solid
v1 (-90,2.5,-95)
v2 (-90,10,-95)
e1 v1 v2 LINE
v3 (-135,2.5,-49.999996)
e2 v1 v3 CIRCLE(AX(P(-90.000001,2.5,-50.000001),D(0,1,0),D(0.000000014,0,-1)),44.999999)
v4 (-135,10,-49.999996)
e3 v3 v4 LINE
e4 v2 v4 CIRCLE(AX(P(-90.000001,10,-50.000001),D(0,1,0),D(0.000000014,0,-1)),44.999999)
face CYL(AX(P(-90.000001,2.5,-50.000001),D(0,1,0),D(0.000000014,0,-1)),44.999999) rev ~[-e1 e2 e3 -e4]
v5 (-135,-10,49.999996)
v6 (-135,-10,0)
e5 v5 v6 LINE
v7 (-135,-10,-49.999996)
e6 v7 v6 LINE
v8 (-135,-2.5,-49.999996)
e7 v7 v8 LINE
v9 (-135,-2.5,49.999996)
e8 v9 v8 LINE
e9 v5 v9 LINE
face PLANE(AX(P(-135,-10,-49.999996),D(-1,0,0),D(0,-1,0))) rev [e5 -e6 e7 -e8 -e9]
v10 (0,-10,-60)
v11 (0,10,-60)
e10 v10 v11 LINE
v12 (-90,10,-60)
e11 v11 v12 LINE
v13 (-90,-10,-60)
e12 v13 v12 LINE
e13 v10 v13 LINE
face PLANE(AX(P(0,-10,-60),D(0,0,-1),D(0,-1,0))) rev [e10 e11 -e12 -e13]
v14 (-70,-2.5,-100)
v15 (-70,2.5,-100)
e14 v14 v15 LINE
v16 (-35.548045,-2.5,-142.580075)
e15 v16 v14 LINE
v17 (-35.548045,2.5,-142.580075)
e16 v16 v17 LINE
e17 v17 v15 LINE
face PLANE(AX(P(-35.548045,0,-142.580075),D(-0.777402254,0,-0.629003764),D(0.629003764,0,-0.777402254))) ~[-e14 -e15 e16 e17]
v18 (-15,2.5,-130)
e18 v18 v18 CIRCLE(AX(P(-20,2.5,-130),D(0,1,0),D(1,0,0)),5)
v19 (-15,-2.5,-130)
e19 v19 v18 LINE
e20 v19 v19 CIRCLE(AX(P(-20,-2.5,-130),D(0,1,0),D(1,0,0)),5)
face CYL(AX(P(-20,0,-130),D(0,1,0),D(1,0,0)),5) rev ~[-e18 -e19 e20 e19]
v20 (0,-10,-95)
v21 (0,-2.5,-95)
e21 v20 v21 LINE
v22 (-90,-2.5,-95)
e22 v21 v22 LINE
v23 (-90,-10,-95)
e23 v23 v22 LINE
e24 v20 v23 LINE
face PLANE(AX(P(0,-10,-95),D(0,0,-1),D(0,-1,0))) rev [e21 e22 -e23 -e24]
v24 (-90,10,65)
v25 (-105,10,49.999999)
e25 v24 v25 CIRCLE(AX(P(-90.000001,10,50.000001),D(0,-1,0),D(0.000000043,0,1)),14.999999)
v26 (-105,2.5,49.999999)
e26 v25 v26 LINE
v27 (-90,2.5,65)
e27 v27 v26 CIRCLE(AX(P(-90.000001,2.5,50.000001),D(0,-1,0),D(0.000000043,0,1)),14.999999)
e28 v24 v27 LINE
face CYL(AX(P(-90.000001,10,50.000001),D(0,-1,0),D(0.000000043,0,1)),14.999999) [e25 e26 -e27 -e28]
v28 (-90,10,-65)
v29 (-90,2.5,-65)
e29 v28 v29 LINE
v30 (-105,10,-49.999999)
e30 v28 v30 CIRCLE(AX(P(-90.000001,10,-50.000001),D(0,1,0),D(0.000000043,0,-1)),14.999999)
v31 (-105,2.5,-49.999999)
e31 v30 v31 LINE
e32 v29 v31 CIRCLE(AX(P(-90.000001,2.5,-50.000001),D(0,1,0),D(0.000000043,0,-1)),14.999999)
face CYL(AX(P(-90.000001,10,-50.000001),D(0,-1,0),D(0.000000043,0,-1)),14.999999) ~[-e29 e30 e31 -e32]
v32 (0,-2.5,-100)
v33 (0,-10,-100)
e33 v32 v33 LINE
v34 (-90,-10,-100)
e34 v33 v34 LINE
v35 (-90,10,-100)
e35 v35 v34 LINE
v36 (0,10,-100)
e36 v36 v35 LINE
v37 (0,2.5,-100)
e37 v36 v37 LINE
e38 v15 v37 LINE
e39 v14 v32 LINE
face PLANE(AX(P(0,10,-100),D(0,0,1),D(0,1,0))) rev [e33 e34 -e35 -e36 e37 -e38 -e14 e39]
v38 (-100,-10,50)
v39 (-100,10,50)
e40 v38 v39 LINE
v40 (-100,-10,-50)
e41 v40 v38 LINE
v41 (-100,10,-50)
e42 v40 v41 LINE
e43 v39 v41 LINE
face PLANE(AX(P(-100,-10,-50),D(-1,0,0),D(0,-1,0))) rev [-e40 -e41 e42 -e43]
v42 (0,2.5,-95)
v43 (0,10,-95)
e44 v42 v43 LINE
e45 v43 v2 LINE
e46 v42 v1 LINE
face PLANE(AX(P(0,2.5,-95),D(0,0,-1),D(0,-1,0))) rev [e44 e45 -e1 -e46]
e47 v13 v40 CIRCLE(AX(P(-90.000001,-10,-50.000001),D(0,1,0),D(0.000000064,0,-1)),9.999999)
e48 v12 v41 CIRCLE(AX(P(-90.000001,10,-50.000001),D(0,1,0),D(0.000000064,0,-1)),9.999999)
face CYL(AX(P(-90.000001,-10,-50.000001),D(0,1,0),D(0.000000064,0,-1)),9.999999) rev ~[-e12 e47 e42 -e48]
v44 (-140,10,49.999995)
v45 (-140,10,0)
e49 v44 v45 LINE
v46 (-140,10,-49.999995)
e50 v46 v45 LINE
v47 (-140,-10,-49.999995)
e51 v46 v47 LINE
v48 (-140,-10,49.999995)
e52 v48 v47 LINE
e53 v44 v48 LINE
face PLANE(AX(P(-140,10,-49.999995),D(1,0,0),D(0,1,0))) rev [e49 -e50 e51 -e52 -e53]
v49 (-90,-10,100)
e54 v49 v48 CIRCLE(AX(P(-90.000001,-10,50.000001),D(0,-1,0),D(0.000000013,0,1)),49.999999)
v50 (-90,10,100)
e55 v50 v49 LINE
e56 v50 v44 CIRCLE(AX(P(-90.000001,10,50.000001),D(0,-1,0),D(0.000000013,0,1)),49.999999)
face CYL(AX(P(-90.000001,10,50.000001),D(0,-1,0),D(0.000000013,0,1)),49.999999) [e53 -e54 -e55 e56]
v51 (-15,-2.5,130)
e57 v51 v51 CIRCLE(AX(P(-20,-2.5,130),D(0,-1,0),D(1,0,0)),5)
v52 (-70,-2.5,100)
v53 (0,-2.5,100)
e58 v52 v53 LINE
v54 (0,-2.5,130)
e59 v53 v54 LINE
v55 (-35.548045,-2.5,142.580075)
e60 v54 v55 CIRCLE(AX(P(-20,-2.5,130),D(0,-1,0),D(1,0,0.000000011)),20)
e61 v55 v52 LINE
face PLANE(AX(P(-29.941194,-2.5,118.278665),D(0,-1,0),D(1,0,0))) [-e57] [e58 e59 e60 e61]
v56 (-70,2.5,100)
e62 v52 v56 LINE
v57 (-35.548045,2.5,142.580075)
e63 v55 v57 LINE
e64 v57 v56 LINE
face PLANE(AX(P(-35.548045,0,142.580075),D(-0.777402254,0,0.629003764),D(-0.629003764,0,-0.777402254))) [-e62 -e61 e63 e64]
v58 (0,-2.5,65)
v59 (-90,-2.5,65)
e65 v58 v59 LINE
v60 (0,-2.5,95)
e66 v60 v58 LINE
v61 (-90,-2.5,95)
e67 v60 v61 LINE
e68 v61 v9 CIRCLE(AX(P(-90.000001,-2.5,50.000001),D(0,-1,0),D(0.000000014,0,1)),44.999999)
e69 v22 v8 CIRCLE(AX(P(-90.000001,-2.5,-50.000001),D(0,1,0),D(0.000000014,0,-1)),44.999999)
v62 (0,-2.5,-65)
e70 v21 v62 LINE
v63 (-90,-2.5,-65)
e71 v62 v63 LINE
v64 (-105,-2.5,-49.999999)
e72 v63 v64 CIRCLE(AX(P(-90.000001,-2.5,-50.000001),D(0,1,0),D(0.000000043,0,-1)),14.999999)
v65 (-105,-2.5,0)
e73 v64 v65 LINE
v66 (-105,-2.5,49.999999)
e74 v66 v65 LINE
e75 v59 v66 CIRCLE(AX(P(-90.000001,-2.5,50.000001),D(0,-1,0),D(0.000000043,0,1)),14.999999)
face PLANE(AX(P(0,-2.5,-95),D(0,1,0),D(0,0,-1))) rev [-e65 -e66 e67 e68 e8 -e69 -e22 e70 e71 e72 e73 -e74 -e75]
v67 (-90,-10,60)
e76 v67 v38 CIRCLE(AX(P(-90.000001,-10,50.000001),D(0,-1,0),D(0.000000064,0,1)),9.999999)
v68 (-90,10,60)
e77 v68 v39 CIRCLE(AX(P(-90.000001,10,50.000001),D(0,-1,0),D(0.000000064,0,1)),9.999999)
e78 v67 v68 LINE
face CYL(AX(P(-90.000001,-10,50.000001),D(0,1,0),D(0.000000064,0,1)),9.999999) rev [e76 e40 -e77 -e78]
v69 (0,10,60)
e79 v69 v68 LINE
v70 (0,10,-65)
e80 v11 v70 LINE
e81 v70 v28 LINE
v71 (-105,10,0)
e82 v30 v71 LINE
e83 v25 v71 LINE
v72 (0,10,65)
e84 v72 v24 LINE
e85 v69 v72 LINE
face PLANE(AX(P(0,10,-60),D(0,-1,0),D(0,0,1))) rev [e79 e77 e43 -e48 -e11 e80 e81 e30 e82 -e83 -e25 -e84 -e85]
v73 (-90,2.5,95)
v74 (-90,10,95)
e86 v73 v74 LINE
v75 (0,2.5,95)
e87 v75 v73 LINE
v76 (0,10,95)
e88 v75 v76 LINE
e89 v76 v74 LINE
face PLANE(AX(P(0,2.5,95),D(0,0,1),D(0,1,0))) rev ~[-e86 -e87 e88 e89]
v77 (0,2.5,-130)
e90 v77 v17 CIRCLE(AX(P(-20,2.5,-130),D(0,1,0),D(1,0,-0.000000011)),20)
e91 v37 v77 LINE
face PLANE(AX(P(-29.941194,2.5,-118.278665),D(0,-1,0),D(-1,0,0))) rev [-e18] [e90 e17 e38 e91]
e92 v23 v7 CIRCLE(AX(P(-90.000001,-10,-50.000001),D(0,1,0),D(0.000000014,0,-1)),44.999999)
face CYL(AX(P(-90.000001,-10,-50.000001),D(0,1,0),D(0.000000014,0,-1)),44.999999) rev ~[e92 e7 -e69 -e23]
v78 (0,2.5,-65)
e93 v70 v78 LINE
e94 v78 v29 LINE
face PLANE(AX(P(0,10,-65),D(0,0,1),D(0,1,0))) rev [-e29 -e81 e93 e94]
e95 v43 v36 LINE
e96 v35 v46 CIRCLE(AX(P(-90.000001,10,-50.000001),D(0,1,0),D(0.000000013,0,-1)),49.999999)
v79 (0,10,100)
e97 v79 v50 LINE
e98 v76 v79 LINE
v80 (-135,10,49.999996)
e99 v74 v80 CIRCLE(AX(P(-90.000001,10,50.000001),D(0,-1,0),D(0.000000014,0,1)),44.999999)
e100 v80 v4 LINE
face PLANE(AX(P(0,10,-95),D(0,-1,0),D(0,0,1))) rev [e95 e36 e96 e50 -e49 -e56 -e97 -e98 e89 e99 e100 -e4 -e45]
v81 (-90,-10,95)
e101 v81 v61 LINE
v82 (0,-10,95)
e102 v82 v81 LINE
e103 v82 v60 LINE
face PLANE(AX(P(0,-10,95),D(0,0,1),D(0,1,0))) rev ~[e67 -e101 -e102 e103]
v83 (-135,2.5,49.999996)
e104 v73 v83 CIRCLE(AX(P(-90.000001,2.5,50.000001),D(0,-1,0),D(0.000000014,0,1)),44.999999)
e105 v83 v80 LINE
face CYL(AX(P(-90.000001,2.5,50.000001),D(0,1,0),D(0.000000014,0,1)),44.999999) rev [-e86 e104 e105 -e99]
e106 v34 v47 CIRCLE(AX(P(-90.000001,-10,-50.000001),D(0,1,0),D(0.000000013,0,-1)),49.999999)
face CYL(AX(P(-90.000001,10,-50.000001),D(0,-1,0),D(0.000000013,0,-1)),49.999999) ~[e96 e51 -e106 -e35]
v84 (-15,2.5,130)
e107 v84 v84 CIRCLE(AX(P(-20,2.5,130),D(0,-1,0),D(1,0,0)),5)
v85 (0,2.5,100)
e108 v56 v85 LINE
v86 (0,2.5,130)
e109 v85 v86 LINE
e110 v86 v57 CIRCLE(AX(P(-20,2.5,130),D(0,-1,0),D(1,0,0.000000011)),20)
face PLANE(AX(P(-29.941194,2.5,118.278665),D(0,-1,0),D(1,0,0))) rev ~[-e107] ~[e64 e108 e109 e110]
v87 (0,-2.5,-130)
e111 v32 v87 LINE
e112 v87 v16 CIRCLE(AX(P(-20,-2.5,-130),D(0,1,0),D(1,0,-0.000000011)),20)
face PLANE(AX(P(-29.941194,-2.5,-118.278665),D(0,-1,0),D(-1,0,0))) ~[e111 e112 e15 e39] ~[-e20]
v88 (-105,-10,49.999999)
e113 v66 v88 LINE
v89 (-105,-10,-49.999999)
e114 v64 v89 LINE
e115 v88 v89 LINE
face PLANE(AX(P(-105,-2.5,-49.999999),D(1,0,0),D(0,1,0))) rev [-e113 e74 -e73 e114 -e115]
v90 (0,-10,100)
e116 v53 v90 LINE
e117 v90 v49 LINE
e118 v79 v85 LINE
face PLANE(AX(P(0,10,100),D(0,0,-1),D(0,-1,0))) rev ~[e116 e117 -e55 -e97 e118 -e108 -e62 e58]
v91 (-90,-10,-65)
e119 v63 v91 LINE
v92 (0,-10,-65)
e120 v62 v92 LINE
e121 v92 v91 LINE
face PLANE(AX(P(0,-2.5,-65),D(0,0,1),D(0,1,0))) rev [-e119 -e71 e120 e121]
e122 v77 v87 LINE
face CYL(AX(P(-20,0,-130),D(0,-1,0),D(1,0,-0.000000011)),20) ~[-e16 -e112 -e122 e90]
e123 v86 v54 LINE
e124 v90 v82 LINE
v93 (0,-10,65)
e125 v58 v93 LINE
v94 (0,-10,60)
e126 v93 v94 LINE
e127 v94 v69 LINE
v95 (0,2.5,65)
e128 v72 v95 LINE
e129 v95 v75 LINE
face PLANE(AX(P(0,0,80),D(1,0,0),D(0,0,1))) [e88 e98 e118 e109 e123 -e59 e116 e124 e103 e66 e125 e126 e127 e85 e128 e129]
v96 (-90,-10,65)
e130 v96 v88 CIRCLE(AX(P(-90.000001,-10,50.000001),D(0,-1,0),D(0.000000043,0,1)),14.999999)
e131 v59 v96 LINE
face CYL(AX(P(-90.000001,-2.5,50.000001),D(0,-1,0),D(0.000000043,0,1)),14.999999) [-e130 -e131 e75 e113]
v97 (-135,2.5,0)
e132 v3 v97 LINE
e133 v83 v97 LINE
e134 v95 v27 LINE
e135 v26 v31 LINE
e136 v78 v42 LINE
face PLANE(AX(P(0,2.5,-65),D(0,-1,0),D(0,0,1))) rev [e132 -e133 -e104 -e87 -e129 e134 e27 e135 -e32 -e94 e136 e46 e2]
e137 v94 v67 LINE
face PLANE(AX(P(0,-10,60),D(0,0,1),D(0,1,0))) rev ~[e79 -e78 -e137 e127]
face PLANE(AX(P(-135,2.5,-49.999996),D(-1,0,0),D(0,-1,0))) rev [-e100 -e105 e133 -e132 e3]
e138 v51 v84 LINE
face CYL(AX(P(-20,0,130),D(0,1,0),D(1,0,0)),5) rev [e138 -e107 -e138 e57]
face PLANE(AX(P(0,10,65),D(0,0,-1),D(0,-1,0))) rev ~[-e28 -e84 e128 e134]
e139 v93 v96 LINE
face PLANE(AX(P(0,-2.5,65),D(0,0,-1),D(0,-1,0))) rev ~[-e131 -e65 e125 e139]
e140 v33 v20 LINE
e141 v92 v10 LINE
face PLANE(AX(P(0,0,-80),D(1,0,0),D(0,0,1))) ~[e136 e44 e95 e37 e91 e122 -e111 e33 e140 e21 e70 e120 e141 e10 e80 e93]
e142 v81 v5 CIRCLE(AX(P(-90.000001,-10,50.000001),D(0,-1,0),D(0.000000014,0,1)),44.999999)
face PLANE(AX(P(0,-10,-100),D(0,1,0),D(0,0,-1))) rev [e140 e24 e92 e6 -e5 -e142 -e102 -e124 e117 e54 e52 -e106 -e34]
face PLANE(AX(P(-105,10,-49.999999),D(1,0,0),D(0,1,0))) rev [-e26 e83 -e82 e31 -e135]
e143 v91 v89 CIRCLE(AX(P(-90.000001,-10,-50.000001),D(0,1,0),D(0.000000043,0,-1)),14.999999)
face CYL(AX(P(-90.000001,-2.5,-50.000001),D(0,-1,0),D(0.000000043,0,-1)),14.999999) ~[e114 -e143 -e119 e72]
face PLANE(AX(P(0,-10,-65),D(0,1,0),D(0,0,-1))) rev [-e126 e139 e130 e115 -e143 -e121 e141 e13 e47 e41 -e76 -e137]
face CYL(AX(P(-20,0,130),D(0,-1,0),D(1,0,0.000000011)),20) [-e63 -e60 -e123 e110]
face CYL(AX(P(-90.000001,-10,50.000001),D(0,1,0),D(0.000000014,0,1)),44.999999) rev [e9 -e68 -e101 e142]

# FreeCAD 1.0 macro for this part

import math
import FreeCAD as App
import Part
import Sketcher
Q = App.Units.Quantity


def add_polygon(sketch, points):
    """Adds a closed chain of lines whose ends are joined by coincident constraints."""
    first, n = sketch.GeometryCount, len(points)
    for a, b in zip(points, points[1:] + points[:1]):
        sketch.addGeometry(Part.LineSegment(App.Vector(*a, 0), App.Vector(*b, 0)), False)
    for i in range(n):
        sketch.addConstraint(Sketcher.Constraint("Coincident", first + i, 2, first + (i + 1) % n, 1))

doc = App.newDocument("Part")
body = doc.addObject("PartDesign::Body", "Body")

# Sketch on YZ plane
sketch1 = body.newObject("Sketcher::SketchObject", "Sketch")
sketch1.AttachmentSupport = (doc.getObject("YZ_Plane"), [""])
sketch1.MapMode = "FlatFace"
add_polygon(sketch1, [(-10, 60), (10, 60), (10, 65), (2, 65), (2, 95), (10, 95), (10, 100), (-10, 100), (-10, 95), (-2, 95), (-2, 65), (-10, 65)])  # lines 0-11
sketch1.addConstraint([
    Sketcher.Constraint("Horizontal", 0),
    Sketcher.Constraint("Vertical", 1),
    Sketcher.Constraint("Horizontal", 2),
    Sketcher.Constraint("Vertical", 3),
    Sketcher.Constraint("Horizontal", 4),
    Sketcher.Constraint("Vertical", 5),
    Sketcher.Constraint("Horizontal", 6),
    Sketcher.Constraint("Vertical", 7),
    Sketcher.Constraint("Horizontal", 8),
    Sketcher.Constraint("Vertical", 9),
    Sketcher.Constraint("Horizontal", 10),
    Sketcher.Constraint("Vertical", 11),
    Sketcher.Constraint("Symmetric", 4, 2, 7, 2, -2),
    Sketcher.Constraint("Symmetric", 2, 2, 9, 2, -2),
    Sketcher.Constraint("Vertical", 1, 2, 4, 2),
    Sketcher.Constraint("Vertical", 7, 2, 10, 2),
    Sketcher.Constraint("Equal", 1, 5),
    Sketcher.Constraint("DistanceX", 0, 1, 0, 2, Q("20 mm")),
    Sketcher.Constraint("DistanceY", 1, 1, 1, 2, Q("5 mm")),
    Sketcher.Constraint("DistanceY", 3, 1, 3, 2, Q("30 mm")),
    Sketcher.Constraint("DistanceX", 2, 2, 2, 1, Q("7.5 mm")),
    Sketcher.Constraint("DistanceY", -1, 1, 0, 2, Q("60 mm")),
])

# Sketch on XZ plane
sketch2 = body.newObject("Sketcher::SketchObject", "Sketch001")
sketch2.AttachmentSupport = (doc.getObject("XZ_Plane"), [""])
sketch2.MapMode = "FlatFace"
sketch2.addGeometry([
    Part.LineSegment(App.Vector(0, 60, 0), App.Vector(-90, 60, 0)),
    Part.ArcOfCircle(Part.Circle(App.Vector(-90, 50, 0), App.Vector(0, 0, 1), 10), math.radians(90), math.radians(180)),
    Part.LineSegment(App.Vector(-100, 50, 0), App.Vector(-100, 0, 0)),
], False)
sketch2.addConstraint([
    Sketcher.Constraint("Tangent", 0, 2, 1, 1),
    Sketcher.Constraint("Tangent", 1, 2, 2, 1),
    Sketcher.Constraint("Horizontal", 0),
    Sketcher.Constraint("Vertical", 2),
    Sketcher.Constraint("PointOnObject", 0, 1, -2),
    Sketcher.Constraint("PointOnObject", 2, 2, -1),
    Sketcher.Constraint("Radius", 1, Q("9.999999 mm")),
    Sketcher.Constraint("DistanceX", 0, 2, 0, 1, Q("90 mm")),
    Sketcher.Constraint("DistanceY", 2, 2, 2, 1, Q("50 mm")),
])
doc.recompute()

additivepipe = body.newObject("PartDesign::AdditivePipe", "AdditivePipe")
additivepipe.Profile = sketch1
additivepipe.Spine = (sketch2, ["Edge1", "Edge2", "Edge3"])

# Sketch on XZ plane
sketch3 = body.newObject("Sketcher::SketchObject", "Sketch002")
sketch3.AttachmentSupport = (doc.getObject("XZ_Plane"), [""])
sketch3.MapMode = "FlatFace"
sketch3.addGeometry([
    Part.LineSegment(App.Vector(-70, 100, 0), App.Vector(0, 100, 0)),  # 0
    Part.LineSegment(App.Vector(0, 100, 0), App.Vector(0, 130, 0)),  # 1
    Part.ArcOfCircle(Part.Circle(App.Vector(-20, 130, 0), App.Vector(0, 0, 1), 20), math.radians(0), math.radians(141)),  # 2
    Part.LineSegment(App.Vector(-36, 143, 0), App.Vector(-70, 100, 0)),  # 3
    Part.Circle(App.Vector(-20, 130, 0), App.Vector(0, 0, 1), 5),  # 4
], False)
sketch3.addConstraint([
    Sketcher.Constraint("Coincident", 0, 2, 1, 1),
    Sketcher.Constraint("Tangent", 1, 2, 2, 1),
    Sketcher.Constraint("Tangent", 2, 2, 3, 1),
    Sketcher.Constraint("Coincident", 3, 2, 0, 1),
    Sketcher.Constraint("Horizontal", 0),
    Sketcher.Constraint("Vertical", 1),
    Sketcher.Constraint("Coincident", 4, 3, 2, 3),
    Sketcher.Constraint("PointOnObject", 0, 2, -2),
    Sketcher.Constraint("Diameter", 4, Q("10 mm")),
    Sketcher.Constraint("Radius", 2, Q("20 mm")),
    Sketcher.Constraint("DistanceX", 0, 1, 0, 2, Q("70 mm")),
    Sketcher.Constraint("DistanceY", 1, 1, 1, 2, Q("30 mm")),
    Sketcher.Constraint("DistanceY", -1, 1, 2, 3, Q("130 mm")),
])
pad1 = body.newObject("PartDesign::Pad", "Pad")
pad1.Profile = sketch3
pad1.Length = 5
pad1.Midplane = True
body2 = doc.addObject("PartDesign::Body", "Body001")
doc.recompute()

body2.BaseFeature = body
doc.recompute()

mirroring = doc.addObject("Part::Mirroring", "Mirroring")
mirroring.Source = body
mirroring.Base = App.Vector(0, 0, 0)
mirroring.Normal = App.Vector(0, 0, 1)
body3 = doc.addObject("PartDesign::Body", "Body002")
body3.BaseFeature = mirroring
boolean = body2.newObject("PartDesign::Boolean", "Boolean")
boolean.Type = "Fuse"
boolean.addObjects([body3])
doc.recompute()
mirroring.Visibility = False

doc.recompute()
